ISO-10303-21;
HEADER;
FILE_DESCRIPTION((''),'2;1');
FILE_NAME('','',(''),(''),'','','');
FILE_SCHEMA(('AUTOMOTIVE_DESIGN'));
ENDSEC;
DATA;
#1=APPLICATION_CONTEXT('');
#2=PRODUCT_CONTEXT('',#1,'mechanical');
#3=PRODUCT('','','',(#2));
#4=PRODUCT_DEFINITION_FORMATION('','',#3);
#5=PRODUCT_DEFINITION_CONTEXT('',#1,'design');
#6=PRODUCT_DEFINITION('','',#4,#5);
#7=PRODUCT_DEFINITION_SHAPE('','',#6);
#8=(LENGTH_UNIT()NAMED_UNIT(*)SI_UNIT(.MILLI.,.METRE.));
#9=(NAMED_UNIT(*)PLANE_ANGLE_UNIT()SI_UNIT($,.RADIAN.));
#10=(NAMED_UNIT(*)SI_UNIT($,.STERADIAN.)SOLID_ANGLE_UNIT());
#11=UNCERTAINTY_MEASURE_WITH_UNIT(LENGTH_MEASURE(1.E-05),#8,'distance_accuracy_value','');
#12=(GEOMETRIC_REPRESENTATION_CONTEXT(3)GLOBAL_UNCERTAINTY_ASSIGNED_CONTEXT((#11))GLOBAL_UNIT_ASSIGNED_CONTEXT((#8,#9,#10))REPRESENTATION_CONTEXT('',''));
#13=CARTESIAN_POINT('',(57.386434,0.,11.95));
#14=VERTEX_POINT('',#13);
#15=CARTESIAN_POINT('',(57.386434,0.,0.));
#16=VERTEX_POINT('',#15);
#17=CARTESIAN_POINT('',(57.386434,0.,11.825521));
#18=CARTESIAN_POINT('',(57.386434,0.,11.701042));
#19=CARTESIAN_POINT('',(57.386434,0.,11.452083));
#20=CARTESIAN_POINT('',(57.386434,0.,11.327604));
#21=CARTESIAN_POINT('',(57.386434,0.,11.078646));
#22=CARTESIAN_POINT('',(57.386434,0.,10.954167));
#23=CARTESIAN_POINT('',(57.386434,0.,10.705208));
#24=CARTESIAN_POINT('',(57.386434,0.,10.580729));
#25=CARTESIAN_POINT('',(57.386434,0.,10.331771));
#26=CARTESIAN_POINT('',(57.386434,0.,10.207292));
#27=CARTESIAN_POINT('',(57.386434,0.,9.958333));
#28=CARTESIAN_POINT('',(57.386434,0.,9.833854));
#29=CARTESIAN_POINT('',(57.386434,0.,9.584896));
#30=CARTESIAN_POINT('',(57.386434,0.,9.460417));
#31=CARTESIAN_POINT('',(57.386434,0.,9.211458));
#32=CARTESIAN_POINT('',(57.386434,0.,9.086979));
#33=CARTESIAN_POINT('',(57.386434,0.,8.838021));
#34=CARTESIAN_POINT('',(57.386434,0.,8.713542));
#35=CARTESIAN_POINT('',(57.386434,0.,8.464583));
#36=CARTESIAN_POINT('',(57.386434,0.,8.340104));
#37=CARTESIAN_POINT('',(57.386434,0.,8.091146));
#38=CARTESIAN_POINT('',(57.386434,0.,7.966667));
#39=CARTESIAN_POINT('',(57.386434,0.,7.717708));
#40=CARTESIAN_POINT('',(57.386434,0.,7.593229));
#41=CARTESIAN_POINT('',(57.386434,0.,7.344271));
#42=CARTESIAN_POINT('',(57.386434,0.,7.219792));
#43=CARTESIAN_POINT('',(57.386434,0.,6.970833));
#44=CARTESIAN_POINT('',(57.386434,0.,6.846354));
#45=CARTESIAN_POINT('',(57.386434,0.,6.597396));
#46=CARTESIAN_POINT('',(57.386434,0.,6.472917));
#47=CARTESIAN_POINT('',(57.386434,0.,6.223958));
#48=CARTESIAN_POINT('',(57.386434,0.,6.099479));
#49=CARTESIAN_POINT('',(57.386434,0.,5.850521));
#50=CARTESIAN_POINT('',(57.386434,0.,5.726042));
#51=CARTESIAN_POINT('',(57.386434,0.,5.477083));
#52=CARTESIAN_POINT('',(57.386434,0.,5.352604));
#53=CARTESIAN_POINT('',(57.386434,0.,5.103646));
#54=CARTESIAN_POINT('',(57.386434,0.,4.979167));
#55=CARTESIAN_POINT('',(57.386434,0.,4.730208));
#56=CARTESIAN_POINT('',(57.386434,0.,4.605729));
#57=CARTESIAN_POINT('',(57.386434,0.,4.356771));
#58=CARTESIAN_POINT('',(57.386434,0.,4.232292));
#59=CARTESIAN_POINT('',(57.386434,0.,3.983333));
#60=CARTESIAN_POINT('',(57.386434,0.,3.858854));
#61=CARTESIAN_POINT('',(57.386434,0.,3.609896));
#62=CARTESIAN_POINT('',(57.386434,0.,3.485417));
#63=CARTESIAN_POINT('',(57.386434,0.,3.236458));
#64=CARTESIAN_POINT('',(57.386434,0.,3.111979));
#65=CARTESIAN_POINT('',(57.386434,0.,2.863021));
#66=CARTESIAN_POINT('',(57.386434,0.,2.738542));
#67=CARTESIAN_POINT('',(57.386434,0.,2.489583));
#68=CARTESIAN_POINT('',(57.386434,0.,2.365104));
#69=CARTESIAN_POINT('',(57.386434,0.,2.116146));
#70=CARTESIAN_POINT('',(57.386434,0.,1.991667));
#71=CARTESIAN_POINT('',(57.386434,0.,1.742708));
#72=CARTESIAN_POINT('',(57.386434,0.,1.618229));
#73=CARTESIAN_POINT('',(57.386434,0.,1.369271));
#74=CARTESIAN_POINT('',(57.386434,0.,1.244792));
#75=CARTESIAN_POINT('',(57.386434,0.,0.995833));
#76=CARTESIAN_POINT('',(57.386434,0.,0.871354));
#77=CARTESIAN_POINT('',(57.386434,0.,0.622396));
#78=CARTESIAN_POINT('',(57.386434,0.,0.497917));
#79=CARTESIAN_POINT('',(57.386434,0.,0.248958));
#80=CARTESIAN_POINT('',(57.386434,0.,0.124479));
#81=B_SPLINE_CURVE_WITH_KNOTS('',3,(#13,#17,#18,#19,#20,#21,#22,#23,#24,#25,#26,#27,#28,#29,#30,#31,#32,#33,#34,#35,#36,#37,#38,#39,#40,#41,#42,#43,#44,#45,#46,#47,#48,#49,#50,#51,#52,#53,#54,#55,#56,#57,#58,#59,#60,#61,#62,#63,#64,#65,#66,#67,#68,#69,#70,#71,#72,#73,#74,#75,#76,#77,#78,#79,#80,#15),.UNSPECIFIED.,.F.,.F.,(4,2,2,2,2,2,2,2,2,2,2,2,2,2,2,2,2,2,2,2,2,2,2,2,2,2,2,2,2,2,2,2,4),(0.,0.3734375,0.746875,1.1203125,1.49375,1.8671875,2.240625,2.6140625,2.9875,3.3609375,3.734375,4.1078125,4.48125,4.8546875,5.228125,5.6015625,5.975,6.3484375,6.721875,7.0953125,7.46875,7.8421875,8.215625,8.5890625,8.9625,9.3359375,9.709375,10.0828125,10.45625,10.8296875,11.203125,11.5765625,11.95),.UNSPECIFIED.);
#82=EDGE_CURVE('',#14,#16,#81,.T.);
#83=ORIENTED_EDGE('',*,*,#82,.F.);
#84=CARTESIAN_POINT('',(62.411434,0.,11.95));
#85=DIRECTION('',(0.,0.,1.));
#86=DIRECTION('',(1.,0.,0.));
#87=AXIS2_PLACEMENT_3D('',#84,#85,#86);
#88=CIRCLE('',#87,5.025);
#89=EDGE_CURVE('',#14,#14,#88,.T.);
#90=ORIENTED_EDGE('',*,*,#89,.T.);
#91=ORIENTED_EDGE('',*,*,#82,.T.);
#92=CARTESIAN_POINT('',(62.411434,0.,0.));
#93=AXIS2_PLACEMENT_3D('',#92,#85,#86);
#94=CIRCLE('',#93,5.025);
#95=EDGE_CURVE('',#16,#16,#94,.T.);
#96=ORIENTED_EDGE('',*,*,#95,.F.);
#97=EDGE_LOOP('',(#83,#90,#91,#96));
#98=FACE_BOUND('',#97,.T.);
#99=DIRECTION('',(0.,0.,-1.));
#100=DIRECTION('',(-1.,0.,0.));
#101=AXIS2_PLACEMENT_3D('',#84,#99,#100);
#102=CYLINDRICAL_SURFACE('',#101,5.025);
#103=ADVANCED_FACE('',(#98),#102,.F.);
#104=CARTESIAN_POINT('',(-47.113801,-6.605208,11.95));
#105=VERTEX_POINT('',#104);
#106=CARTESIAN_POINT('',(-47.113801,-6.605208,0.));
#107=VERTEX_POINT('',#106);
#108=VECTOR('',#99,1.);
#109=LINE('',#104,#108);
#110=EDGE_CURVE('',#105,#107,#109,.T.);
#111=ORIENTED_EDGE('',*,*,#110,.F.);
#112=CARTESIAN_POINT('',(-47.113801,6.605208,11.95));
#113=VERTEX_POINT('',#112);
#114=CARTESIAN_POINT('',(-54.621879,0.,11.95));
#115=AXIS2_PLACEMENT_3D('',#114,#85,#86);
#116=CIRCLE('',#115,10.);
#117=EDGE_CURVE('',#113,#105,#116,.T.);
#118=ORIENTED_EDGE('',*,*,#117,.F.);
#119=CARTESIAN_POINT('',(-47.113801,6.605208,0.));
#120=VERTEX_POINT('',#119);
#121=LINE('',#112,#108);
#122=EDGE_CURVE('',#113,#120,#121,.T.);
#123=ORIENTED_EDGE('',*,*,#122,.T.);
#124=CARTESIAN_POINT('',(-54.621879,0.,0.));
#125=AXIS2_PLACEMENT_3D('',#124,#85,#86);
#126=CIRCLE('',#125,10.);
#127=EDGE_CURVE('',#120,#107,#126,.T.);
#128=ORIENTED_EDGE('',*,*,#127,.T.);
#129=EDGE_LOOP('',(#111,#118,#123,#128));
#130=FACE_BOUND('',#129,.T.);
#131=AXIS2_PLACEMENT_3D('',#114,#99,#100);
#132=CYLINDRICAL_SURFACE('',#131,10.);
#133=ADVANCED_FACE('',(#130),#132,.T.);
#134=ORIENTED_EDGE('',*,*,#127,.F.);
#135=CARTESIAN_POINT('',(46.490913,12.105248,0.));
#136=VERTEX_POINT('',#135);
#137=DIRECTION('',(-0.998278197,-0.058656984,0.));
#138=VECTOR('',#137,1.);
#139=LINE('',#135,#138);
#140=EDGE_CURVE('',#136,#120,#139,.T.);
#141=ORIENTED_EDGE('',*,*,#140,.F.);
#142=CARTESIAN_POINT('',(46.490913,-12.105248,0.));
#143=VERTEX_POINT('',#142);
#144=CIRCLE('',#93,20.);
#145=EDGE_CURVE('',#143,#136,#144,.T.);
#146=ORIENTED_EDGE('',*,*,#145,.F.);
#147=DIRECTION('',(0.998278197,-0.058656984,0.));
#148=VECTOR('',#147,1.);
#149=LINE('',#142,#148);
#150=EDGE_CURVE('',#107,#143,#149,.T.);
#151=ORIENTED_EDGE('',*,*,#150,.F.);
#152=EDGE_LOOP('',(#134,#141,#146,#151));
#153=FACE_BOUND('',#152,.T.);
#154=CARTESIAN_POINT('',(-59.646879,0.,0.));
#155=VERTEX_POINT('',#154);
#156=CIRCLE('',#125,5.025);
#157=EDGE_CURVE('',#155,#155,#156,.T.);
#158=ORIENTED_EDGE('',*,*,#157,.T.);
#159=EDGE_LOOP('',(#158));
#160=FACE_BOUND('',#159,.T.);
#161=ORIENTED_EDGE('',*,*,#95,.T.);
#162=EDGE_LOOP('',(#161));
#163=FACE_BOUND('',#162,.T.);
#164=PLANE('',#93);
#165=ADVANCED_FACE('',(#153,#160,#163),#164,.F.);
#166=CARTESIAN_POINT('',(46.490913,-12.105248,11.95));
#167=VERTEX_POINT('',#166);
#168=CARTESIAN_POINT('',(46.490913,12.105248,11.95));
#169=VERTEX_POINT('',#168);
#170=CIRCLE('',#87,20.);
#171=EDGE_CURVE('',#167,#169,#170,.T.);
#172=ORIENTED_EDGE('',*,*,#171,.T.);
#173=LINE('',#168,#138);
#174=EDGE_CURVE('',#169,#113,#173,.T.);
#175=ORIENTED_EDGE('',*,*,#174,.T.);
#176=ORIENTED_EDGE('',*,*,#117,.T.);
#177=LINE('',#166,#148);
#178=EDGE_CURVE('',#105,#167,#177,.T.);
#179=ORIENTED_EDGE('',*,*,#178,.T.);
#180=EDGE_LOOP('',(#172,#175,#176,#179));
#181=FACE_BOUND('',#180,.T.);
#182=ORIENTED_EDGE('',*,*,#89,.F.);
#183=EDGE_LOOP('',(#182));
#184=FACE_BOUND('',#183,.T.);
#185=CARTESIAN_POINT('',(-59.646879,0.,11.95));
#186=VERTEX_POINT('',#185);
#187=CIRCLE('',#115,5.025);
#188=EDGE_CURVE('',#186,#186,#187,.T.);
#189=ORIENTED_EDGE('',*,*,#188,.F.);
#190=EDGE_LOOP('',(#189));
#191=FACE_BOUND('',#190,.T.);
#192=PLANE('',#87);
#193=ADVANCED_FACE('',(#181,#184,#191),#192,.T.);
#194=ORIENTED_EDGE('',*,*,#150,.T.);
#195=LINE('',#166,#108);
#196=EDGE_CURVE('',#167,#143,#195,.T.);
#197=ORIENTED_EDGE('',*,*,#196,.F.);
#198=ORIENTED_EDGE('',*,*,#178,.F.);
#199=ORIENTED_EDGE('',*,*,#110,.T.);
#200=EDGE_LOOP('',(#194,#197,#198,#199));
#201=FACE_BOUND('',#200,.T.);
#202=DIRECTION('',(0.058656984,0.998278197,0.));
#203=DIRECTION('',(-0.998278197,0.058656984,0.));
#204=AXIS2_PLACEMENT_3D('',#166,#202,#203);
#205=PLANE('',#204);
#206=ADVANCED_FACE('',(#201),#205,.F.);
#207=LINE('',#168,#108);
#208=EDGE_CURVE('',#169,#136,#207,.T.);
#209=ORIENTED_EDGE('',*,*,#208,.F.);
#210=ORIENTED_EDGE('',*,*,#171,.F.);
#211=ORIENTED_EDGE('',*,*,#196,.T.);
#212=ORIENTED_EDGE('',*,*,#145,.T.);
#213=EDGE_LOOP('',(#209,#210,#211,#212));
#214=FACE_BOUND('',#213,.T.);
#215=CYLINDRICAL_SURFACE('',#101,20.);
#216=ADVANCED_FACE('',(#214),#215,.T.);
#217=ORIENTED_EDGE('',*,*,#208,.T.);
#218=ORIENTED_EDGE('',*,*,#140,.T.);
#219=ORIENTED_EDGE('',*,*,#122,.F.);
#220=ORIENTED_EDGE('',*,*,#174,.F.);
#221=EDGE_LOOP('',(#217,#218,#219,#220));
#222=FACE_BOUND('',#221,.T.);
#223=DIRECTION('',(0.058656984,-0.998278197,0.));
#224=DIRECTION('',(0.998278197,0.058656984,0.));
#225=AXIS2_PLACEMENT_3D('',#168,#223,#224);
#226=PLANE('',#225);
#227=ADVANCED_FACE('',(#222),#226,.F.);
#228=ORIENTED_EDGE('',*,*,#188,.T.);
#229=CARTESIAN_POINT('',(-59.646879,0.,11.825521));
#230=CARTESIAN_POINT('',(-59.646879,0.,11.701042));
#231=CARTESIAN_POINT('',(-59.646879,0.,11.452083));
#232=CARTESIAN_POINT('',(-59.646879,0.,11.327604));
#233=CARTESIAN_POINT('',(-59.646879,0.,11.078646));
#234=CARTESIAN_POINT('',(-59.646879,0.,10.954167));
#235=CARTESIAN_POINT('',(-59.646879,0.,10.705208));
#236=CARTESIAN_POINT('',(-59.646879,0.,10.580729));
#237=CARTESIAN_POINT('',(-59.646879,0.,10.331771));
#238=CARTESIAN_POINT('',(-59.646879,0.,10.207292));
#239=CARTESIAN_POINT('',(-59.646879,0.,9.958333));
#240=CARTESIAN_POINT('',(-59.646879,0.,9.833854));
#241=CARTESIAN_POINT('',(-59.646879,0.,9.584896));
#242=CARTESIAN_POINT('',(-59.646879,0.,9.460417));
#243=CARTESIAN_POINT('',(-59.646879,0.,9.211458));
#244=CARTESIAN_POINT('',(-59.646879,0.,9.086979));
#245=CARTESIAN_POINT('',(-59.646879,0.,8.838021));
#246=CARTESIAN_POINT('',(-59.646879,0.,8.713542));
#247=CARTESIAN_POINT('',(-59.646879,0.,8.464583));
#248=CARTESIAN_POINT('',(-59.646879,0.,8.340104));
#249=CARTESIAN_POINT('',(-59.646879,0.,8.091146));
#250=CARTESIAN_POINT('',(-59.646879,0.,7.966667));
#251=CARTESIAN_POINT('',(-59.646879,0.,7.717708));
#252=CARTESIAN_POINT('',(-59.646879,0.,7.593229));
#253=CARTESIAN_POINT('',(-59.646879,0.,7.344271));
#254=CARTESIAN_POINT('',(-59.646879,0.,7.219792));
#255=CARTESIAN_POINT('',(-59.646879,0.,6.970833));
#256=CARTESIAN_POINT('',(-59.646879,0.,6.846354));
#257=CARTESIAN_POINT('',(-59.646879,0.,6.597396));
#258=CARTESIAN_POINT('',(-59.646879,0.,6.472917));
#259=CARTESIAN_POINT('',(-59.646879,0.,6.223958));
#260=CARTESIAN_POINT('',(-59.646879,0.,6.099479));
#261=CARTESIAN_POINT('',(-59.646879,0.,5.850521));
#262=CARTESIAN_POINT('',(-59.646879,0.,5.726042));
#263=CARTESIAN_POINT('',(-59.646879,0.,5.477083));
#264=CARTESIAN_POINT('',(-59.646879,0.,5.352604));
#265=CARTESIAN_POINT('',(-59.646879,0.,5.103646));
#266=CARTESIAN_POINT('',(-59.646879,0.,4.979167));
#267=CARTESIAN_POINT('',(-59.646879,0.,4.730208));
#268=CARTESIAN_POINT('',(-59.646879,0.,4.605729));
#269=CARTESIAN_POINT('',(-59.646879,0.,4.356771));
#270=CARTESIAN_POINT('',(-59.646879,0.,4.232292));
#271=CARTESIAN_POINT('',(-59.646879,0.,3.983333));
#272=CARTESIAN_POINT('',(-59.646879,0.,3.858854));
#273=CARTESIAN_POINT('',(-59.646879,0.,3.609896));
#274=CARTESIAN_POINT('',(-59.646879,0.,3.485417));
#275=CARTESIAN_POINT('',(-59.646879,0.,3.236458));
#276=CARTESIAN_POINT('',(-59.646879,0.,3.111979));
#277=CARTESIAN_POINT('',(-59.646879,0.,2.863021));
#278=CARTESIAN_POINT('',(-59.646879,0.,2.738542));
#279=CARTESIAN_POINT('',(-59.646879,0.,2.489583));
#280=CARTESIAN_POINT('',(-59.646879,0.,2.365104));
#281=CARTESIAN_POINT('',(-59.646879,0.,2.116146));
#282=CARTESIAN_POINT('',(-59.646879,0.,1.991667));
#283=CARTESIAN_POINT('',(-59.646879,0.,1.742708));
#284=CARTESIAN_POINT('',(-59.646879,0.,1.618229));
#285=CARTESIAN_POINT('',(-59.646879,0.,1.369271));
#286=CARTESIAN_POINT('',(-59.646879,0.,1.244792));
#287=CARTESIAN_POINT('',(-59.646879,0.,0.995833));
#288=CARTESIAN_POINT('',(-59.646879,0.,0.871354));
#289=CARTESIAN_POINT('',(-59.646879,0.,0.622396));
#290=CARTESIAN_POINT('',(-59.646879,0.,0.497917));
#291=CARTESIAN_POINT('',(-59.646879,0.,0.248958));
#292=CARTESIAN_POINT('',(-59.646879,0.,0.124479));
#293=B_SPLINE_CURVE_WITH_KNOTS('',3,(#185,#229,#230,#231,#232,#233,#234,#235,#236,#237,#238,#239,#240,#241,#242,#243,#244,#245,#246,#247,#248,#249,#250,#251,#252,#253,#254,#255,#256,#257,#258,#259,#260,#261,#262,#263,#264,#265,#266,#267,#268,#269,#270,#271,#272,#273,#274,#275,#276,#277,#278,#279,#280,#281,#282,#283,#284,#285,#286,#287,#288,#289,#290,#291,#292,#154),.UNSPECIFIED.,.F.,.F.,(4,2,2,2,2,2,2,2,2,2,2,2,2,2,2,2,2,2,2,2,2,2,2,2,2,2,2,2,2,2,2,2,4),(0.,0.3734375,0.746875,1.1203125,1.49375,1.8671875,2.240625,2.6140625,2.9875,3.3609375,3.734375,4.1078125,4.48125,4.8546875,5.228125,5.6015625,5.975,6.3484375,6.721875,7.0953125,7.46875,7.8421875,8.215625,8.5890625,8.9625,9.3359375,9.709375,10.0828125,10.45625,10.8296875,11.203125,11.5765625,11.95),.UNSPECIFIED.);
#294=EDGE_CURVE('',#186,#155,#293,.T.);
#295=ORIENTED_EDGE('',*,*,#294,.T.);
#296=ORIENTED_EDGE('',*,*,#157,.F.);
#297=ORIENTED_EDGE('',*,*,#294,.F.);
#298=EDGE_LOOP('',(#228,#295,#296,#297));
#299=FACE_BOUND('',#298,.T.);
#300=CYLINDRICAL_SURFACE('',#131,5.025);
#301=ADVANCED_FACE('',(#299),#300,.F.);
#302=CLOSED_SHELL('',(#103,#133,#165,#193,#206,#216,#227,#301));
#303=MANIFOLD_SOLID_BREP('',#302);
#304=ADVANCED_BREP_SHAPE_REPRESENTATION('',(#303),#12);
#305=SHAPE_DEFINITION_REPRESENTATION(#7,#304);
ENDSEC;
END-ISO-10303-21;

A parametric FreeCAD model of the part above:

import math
import FreeCAD as App
import Part
import Sketcher
from FreeCAD import Vector
Q = App.Units.Quantity

doc = App.newDocument("Part")
params = doc.addObject("Spreadsheet::Sheet", "Params")
for row, (alias, value) in enumerate([
    ("sketch1_radius", "20 mm"),
    ("sketch1_radius2", "10 mm"),
    ("sketch1_diameter", "10.05 mm"),
    ("pad1_length", "11.95 mm"),
], start=1):
    params.set(f"A{row}", alias)
    params.set(f"B{row}", "=" + value)
    params.setAlias(f"B{row}", alias)

body = doc.addObject("PartDesign::Body", "Body")

sketch1 = doc.addObject("Sketcher::SketchObject", "Sketch")
body.addObject(sketch1)
sketch1.AttachmentSupport = (doc.XY_Plane, [""])
sketch1.MapMode = "FlatFace"
sketch1.addGeometry([
    Part.LineSegment(Vector(-47, -7, 0), Vector(46, -12, 0)),
    Part.ArcOfCircle(Part.Circle(Vector(62, 0, 0), Vector(0, 0, 1), 20), math.radians(-143), math.radians(143)),
    Part.LineSegment(Vector(46, 12, 0), Vector(-47, 7, 0)),
    Part.ArcOfCircle(Part.Circle(Vector(-55, 0, 0), Vector(0, 0, 1), 10), math.radians(41), math.radians(319)),
    Part.Circle(Vector(62, 0, 0), Vector(0, 0, 1), 5),
    Part.Circle(Vector(-55, 0, 0), Vector(0, 0, 1), 5),
], False)
sketch1.addConstraint([
    Sketcher.Constraint("Coincident", 0, 2, 1, 1),
    Sketcher.Constraint("Coincident", 1, 2, 2, 1),
    Sketcher.Constraint("Coincident", 2, 2, 3, 1),
    Sketcher.Constraint("Coincident", 3, 2, 0, 1),
    Sketcher.Constraint("Coincident", 4, 3, 1, 3),
    Sketcher.Constraint("Coincident", 5, 3, 3, 3),
    Sketcher.Constraint("Equal", 4, 5),
    Sketcher.Constraint("Symmetric", 0, 2, 1, 2, -1),
    Sketcher.Constraint("Symmetric", 2, 2, 3, 2, -1),
    Sketcher.Constraint("Radius", 1, Q("20 mm")),
    Sketcher.Constraint("Radius", 3, Q("10 mm")),
    Sketcher.Constraint("Diameter", 4, Q("10.05 mm")),
    Sketcher.Constraint("DistanceX", 2, 2, -1, 1, Q("47.113801 mm")),
    Sketcher.Constraint("Distance", 0, Q("93.766162 mm")),
    Sketcher.Constraint("DistanceX", 3, 3, -1, 1, Q("54.621879 mm")),
    Sketcher.Constraint("DistanceX", 0, 2, 1, 3, Q("15.920521 mm")),
])
sketch1.setExpression("Constraints[9]", "Params.sketch1_radius")
sketch1.setExpression("Constraints[10]", "Params.sketch1_radius2")
sketch1.setExpression("Constraints[11]", "Params.sketch1_diameter")
pad1 = doc.addObject("PartDesign::Pad", "Pad")
body.addObject(pad1)
pad1.Profile = sketch1
pad1.setExpression("Length", "Params.pad1_length")

doc.recompute()
